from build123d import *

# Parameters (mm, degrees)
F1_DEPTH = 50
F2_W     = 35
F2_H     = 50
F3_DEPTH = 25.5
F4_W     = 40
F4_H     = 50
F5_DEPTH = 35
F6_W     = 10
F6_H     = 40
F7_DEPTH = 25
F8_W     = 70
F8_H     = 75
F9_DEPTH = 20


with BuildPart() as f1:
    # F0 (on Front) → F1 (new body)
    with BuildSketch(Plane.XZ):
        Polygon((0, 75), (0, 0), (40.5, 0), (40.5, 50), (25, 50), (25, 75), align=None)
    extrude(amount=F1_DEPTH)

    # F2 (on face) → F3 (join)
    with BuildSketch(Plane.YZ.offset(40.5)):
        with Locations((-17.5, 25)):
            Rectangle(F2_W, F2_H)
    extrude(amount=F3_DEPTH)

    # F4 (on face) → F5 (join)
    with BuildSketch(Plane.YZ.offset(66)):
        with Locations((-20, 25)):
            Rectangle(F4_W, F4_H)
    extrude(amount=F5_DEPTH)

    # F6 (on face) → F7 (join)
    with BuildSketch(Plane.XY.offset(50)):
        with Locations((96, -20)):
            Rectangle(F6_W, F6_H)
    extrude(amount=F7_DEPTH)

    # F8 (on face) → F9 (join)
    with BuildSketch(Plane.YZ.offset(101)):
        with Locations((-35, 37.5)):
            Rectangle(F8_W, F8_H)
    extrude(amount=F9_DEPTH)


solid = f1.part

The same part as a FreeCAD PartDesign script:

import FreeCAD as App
import Part
import Sketcher
from FreeCAD import Vector
Q = App.Units.Quantity


def add_polygon(sketch, points):
    """Adds a closed chain of lines whose ends are joined by coincident constraints."""
    first, n = sketch.GeometryCount, len(points)
    for a, b in zip(points, points[1:] + points[:1]):
        sketch.addGeometry(Part.LineSegment(App.Vector(*a, 0), App.Vector(*b, 0)), False)
    for i in range(n):
        sketch.addConstraint(Sketcher.Constraint("Coincident", first + i, 2, first + (i + 1) % n, 1))

doc = App.newDocument("Part")
body = doc.addObject("PartDesign::Body", "Body")

# Sketch on XZ plane
sketch1 = body.newObject("Sketcher::SketchObject", "Sketch")
sketch1.AttachmentSupport = (doc.getObject("XZ_Plane"), [""])
sketch1.MapMode = "FlatFace"
add_polygon(sketch1, [(0, 75), (0, 0), (40, 0), (40, 50), (25, 50), (25, 75)])  # lines 0-5
sketch1.addConstraint([
    Sketcher.Constraint("Vertical", 0),
    Sketcher.Constraint("Horizontal", 1),
    Sketcher.Constraint("Vertical", 2),
    Sketcher.Constraint("Horizontal", 3),
    Sketcher.Constraint("Vertical", 4),
    Sketcher.Constraint("Horizontal", 5),
    Sketcher.Constraint("Coincident", 0, 2, -1, 1),
    Sketcher.Constraint("Equal", 5, 4),
    Sketcher.Constraint("DistanceX", 5, 2, 5, 1, Q("25 mm")),
    Sketcher.Constraint("DistanceY", 0, 2, 0, 1, Q("75 mm")),
    Sketcher.Constraint("DistanceX", 1, 1, 1, 2, Q("40.5 mm")),
])
pad1 = body.newObject("PartDesign::Pad", "Pad")
pad1.Profile = sketch1
pad1.Length = 50

# Sketch on YZ plane
sketch2 = body.newObject("Sketcher::SketchObject", "Sketch001")
sketch2.AttachmentSupport = (doc.getObject("YZ_Plane"), [""])
sketch2.MapMode = "FlatFace"
sketch2.AttachmentOffset = App.Placement(Vector(0, 0, 40.5), App.Rotation())
add_polygon(sketch2, [(-35, 50), (-35, 0), (0, 0), (0, 50)])  # lines 0-3
sketch2.addConstraint([
    Sketcher.Constraint("Vertical", 0),
    Sketcher.Constraint("Horizontal", 1),
    Sketcher.Constraint("Vertical", 2),
    Sketcher.Constraint("Horizontal", 3),
    Sketcher.Constraint("Coincident", 1, 2, -1, 1),
    Sketcher.Constraint("DistanceX", 1, 1, 1, 2, Q("35 mm")),
    Sketcher.Constraint("DistanceY", 0, 2, 0, 1, Q("50 mm")),
])
pad2 = body.newObject("PartDesign::Pad", "Pad001")
pad2.Profile = sketch2
pad2.Length = 25.5

# Sketch on YZ plane
sketch3 = body.newObject("Sketcher::SketchObject", "Sketch002")
sketch3.AttachmentSupport = (doc.getObject("YZ_Plane"), [""])
sketch3.MapMode = "FlatFace"
sketch3.AttachmentOffset = App.Placement(Vector(0, 0, 66), App.Rotation())
add_polygon(sketch3, [(-40, 50), (-40, 0), (0, 0), (0, 50)])  # lines 0-3
sketch3.addConstraint([
    Sketcher.Constraint("Vertical", 0),
    Sketcher.Constraint("Horizontal", 1),
    Sketcher.Constraint("Vertical", 2),
    Sketcher.Constraint("Horizontal", 3),
    Sketcher.Constraint("Coincident", 1, 2, -1, 1),
    Sketcher.Constraint("DistanceX", 1, 1, 1, 2, Q("40 mm")),
    Sketcher.Constraint("DistanceY", 0, 2, 0, 1, Q("50 mm")),
])
pad3 = body.newObject("PartDesign::Pad", "Pad002")
pad3.Profile = sketch3
pad3.Length = 35

# Sketch on XY plane
sketch4 = body.newObject("Sketcher::SketchObject", "Sketch003")
sketch4.AttachmentSupport = (doc.getObject("XY_Plane"), [""])
sketch4.MapMode = "FlatFace"
sketch4.AttachmentOffset = App.Placement(Vector(0, 0, 50), App.Rotation())
add_polygon(sketch4, [(91, 0), (91, -40), (101, -40), (101, 0)])  # lines 0-3
sketch4.addConstraint([
    Sketcher.Constraint("Vertical", 0),
    Sketcher.Constraint("Horizontal", 1),
    Sketcher.Constraint("Vertical", 2),
    Sketcher.Constraint("Horizontal", 3),
    Sketcher.Constraint("PointOnObject", 2, 2, -1),
    Sketcher.Constraint("DistanceX", 1, 1, 1, 2, Q("10 mm")),
    Sketcher.Constraint("DistanceY", 0, 2, 0, 1, Q("40 mm")),
    Sketcher.Constraint("DistanceX", -1, 1, 0, 2, Q("91 mm")),
])
pad4 = body.newObject("PartDesign::Pad", "Pad003")
pad4.Profile = sketch4
pad4.Length = 25

# Sketch on YZ plane
sketch5 = body.newObject("Sketcher::SketchObject", "Sketch004")
sketch5.AttachmentSupport = (doc.getObject("YZ_Plane"), [""])
sketch5.MapMode = "FlatFace"
sketch5.AttachmentOffset = App.Placement(Vector(0, 0, 101), App.Rotation())
add_polygon(sketch5, [(-70, 75), (-70, 0), (0, 0), (0, 75)])  # lines 0-3
sketch5.addConstraint([
    Sketcher.Constraint("Vertical", 0),
    Sketcher.Constraint("Horizontal", 1),
    Sketcher.Constraint("Vertical", 2),
    Sketcher.Constraint("Horizontal", 3),
    Sketcher.Constraint("Coincident", 1, 2, -1, 1),
    Sketcher.Constraint("DistanceX", 1, 1, 1, 2, Q("70 mm")),
    Sketcher.Constraint("DistanceY", 0, 2, 0, 1, Q("75 mm")),
])
pad5 = body.newObject("PartDesign::Pad", "Pad004")
pad5.Profile = sketch5
pad5.Length = 20

doc.recompute()
